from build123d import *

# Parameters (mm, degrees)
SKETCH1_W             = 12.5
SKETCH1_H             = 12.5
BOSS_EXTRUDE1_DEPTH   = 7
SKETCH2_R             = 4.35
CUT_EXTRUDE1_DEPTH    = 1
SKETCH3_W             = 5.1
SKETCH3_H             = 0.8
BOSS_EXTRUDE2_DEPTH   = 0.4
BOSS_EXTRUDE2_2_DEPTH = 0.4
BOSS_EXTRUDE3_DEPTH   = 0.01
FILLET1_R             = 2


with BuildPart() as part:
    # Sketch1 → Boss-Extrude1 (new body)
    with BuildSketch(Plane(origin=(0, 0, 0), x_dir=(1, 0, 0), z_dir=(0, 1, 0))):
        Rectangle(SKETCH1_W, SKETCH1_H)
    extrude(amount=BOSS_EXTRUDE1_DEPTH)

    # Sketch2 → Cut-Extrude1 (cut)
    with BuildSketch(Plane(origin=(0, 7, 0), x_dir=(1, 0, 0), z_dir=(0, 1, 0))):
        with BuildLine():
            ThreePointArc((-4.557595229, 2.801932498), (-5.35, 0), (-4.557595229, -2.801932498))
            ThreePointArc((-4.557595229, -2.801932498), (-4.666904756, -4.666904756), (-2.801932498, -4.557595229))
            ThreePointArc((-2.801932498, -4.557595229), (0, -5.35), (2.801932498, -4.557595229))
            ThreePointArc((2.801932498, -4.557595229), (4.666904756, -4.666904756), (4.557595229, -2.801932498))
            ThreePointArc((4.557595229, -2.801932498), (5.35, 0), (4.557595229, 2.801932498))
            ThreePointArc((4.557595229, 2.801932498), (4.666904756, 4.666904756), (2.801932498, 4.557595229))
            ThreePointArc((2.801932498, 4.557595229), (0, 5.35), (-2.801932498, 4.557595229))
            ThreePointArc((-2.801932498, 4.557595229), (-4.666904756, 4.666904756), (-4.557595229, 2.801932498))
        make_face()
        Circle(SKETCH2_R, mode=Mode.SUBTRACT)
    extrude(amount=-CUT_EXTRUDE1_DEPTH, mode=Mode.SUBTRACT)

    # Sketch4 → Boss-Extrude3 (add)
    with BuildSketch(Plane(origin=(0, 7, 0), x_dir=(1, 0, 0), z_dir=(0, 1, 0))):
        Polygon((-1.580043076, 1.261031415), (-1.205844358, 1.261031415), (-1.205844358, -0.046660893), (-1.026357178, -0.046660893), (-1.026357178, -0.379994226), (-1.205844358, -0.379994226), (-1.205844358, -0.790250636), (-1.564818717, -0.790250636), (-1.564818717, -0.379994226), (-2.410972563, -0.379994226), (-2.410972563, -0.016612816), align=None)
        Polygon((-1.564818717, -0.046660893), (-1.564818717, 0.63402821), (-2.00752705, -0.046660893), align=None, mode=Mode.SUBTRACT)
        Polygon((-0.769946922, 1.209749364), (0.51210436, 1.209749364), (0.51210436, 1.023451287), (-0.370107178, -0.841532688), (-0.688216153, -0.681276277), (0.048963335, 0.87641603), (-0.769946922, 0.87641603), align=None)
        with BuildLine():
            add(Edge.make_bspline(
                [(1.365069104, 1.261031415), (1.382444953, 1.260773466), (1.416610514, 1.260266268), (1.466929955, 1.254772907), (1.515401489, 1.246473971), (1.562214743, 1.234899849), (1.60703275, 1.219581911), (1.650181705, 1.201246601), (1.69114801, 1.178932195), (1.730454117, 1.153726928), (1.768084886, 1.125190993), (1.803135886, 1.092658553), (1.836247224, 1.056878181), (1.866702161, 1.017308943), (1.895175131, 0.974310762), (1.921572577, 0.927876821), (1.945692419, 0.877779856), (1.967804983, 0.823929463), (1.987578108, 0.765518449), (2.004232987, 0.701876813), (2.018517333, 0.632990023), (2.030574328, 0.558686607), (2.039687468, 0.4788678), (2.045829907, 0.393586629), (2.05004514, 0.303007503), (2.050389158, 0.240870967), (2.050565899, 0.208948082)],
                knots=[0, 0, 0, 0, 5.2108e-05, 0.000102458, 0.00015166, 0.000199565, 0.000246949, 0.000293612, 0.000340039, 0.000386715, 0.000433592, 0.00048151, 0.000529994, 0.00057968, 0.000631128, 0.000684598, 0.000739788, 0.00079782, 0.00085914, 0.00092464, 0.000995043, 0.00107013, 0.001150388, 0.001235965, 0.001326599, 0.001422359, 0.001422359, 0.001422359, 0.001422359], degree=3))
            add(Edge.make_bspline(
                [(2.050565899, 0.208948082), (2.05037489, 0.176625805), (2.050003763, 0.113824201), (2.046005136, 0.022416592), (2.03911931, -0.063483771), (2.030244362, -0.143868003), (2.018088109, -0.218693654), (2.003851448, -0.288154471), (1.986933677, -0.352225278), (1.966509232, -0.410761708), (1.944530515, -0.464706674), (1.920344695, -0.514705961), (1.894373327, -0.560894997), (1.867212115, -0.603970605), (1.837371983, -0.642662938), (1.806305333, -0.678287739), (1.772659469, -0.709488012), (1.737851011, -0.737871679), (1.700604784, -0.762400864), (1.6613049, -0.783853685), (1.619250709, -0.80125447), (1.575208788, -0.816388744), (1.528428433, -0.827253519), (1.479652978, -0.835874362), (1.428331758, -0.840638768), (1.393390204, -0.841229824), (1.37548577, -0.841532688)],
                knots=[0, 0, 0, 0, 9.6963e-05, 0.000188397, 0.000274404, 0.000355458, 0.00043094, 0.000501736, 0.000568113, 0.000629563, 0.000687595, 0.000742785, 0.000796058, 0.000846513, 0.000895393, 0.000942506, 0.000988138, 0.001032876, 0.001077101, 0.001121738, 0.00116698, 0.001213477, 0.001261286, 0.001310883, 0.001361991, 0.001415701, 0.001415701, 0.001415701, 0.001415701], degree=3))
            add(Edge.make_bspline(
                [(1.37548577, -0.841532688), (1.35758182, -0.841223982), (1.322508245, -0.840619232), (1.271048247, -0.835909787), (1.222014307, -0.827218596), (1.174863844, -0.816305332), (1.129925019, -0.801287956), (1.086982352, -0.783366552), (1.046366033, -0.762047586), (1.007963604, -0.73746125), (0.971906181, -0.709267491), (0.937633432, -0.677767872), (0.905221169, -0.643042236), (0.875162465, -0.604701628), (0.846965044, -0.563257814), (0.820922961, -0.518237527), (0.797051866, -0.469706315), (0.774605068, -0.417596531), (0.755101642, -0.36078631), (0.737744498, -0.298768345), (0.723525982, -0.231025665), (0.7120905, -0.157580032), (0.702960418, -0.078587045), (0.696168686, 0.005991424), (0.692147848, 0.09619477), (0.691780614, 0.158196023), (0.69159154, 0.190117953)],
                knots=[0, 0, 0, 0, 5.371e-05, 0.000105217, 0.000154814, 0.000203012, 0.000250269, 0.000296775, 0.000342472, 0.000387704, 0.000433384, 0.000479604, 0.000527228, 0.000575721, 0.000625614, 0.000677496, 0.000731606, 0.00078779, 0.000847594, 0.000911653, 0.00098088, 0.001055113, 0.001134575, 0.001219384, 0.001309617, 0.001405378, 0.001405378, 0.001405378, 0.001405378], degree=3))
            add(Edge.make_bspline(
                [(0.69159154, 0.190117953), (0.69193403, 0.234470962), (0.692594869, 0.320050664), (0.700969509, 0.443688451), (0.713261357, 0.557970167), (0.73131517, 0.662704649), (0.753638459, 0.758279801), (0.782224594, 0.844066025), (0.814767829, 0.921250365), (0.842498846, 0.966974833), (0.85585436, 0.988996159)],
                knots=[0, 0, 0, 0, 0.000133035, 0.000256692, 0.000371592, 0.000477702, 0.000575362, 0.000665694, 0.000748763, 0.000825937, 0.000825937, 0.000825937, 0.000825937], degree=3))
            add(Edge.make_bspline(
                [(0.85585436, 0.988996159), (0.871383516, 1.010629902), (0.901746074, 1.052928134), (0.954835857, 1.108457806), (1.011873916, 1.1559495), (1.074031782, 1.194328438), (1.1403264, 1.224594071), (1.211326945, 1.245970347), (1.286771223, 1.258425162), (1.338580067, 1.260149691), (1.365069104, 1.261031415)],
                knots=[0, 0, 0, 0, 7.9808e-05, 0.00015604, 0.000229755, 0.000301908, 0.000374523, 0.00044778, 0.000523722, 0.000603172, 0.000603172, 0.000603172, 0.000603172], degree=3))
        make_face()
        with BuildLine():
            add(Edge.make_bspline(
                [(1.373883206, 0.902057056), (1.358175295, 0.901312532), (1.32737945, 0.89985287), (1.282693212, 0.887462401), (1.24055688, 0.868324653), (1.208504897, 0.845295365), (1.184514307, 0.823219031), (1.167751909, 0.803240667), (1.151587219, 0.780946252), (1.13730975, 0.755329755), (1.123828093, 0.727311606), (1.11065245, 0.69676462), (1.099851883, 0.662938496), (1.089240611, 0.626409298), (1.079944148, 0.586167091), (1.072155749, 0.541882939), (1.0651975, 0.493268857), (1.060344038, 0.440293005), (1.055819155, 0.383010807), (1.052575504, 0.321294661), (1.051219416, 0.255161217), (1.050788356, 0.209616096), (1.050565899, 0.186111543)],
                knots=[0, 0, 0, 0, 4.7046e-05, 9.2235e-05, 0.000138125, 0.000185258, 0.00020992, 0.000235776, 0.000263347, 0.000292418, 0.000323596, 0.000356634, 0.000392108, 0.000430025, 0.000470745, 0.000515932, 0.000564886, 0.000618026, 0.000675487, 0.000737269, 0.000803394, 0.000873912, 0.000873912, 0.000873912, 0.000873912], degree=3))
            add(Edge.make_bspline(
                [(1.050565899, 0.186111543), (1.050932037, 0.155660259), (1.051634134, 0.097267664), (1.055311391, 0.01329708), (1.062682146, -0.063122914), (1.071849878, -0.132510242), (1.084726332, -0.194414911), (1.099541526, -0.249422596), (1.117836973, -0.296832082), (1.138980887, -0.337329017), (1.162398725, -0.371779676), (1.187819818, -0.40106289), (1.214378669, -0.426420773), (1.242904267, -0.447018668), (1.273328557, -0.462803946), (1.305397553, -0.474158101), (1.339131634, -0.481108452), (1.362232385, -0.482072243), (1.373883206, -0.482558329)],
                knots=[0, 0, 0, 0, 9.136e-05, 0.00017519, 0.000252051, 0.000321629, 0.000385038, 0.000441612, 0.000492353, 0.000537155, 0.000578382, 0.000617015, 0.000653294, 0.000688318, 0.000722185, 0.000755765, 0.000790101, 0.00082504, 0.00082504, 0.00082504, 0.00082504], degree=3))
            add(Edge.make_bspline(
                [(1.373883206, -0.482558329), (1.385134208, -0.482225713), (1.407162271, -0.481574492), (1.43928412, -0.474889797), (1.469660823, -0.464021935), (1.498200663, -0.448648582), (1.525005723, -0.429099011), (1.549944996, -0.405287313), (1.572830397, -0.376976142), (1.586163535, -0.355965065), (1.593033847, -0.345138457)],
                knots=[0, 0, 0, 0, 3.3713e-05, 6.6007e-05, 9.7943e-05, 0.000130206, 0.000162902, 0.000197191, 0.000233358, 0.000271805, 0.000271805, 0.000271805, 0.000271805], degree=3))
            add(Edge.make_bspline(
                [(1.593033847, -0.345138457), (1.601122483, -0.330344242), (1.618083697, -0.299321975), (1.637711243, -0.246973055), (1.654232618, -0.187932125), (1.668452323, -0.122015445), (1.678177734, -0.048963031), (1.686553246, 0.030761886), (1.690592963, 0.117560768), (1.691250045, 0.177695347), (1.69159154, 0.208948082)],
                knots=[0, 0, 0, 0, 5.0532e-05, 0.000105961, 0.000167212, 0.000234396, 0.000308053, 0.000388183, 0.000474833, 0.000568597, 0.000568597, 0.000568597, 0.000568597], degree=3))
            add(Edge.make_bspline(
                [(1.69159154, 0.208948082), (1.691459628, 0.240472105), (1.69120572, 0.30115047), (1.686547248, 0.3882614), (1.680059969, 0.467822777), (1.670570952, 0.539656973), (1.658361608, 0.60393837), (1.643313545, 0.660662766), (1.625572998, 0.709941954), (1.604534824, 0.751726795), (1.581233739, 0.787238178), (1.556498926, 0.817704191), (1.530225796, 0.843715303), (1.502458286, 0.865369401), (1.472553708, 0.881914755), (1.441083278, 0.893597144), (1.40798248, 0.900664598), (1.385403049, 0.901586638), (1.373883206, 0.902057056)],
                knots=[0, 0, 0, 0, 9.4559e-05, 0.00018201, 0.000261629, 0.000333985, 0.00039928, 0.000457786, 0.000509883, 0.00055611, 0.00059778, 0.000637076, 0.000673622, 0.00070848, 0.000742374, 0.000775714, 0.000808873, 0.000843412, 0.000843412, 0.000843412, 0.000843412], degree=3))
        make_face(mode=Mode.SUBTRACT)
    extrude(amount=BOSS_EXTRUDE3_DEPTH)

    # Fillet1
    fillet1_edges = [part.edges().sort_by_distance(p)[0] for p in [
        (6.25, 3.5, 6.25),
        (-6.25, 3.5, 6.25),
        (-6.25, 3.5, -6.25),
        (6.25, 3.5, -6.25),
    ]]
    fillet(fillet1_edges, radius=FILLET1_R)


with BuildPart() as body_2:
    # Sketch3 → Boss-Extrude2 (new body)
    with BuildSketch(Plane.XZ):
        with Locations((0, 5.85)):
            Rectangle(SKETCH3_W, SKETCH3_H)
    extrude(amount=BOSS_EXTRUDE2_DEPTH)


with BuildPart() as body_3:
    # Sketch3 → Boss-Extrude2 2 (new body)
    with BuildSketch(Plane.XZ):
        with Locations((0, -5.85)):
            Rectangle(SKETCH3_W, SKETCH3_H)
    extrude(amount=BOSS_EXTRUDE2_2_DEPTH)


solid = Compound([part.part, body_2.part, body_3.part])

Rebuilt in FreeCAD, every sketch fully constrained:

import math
import FreeCAD as App
import Part
import Sketcher
from FreeCAD import Vector
Q = App.Units.Quantity


def edges_at(feature, points):
    """Names of the edges that pass closest to the given points."""
    edges = feature.Shape.Edges
    near = lambda p: min(range(len(edges)), key=lambda i: edges[i].distToShape(Part.Vertex(*p))[0])
    return sorted({f"Edge{near(p) + 1}" for p in points})


def add_polygon(sketch, points):
    """Adds a closed chain of lines whose ends are joined by coincident constraints."""
    first, n = sketch.GeometryCount, len(points)
    for a, b in zip(points, points[1:] + points[:1]):
        sketch.addGeometry(Part.LineSegment(App.Vector(*a, 0), App.Vector(*b, 0)), False)
    for i in range(n):
        sketch.addConstraint(Sketcher.Constraint("Coincident", first + i, 2, first + (i + 1) % n, 1))

doc = App.newDocument("Part")
params = doc.addObject("Spreadsheet::Sheet", "Params")
for row, (alias, value) in enumerate([
    ("sketch1_width", "12.5 mm"),
    ("pad1_length", "7 mm"),
    ("sketch2_diameter", "8.7 mm"),
    ("sketch2_radius", "5.35 mm"),
    ("sketch2_radius2", "1.25 mm"),
    ("pocket1_length", "1 mm"),
    ("pad2_length", "0.01 mm"),
    ("fillet_radius", "2 mm"),
    ("sketch4_width", "5.1 mm"),
    ("sketch4_height", "0.8 mm"),
    ("pad3_length", "0.4 mm"),
    ("sketch5_width", "5.1 mm"),
    ("sketch5_height", "0.8 mm"),
    ("pad4_length", "0.4 mm"),
], start=1):
    params.set(f"A{row}", alias)
    params.set(f"B{row}", "=" + value)
    params.setAlias(f"B{row}", alias)

body = doc.addObject("PartDesign::Body", "Body")

# Sketch on XZ plane
sketch1 = body.newObject("Sketcher::SketchObject", "Sketch")
sketch1.AttachmentSupport = (doc.getObject("XZ_Plane"), [""])
sketch1.MapMode = "FlatFace"
add_polygon(sketch1, [(-6, -6), (-6, 6), (6, 6), (6, -6)])  # lines 0-3
sketch1.addConstraint(Sketcher.Constraint("Vertical", 0))
sketch1.addConstraint(Sketcher.Constraint("Horizontal", 1))
sketch1.addConstraint(Sketcher.Constraint("Vertical", 2))
sketch1.addConstraint(Sketcher.Constraint("Horizontal", 3))
sketch1.addConstraint(Sketcher.Constraint("Symmetric", 0, 2, 2, 2, -1, 1))
sketch1.addConstraint(Sketcher.Constraint("Equal", 3, 0))
sketch1.addConstraint(Sketcher.Constraint("DistanceX", 1, 1, 1, 2, Q("12.5 mm")))
sketch1.setExpression("Constraints[10]", "Params.sketch1_width")
pad1 = body.newObject("PartDesign::Pad", "Pad")
pad1.Profile = sketch1
pad1.setExpression("Length", "Params.pad1_length")
pad1.Reversed = True

# Sketch on XZ plane
sketch2 = body.newObject("Sketcher::SketchObject", "Sketch001")
sketch2.AttachmentSupport = (doc.getObject("XZ_Plane"), [""])
sketch2.MapMode = "FlatFace"
sketch2.AttachmentOffset = App.Placement(Vector(0, 0, -7), App.Rotation())
sketch2.addGeometry(Part.ArcOfCircle(Part.Circle(Vector(0, 0, 0), Vector(0, 0, 1), 5.3), math.radians(148), math.radians(212)), False)
sketch2.addGeometry(Part.ArcOfCircle(Part.Circle(Vector(-3.8, 3.8, 0), Vector(0, 0, 1), 1.2), math.radians(38), math.radians(232)), False)
sketch2.addGeometry(Part.ArcOfCircle(Part.Circle(Vector(0, 0, 0), Vector(0, 0, 1), 5.3), math.radians(58), math.radians(122)), False)
sketch2.addGeometry(Part.ArcOfCircle(Part.Circle(Vector(3.8, 3.8, 0), Vector(0, 0, 1), 1.2), math.radians(-52), math.radians(142)), False)
sketch2.addGeometry(Part.ArcOfCircle(Part.Circle(Vector(0, 0, 0), Vector(0, 0, 1), 5.3), math.radians(-32), math.radians(32)), False)
sketch2.addGeometry(Part.ArcOfCircle(Part.Circle(Vector(3.8, -3.8, 0), Vector(0, 0, 1), 1.2), math.radians(-142), math.radians(52)), False)
sketch2.addGeometry(Part.ArcOfCircle(Part.Circle(Vector(0, 0, 0), Vector(0, 0, 1), 5.3), math.radians(-122), math.radians(-58)), False)
sketch2.addGeometry(Part.ArcOfCircle(Part.Circle(Vector(-3.8, -3.8, 0), Vector(0, 0, 1), 1.2), math.radians(128), math.radians(322)), False)
sketch2.addGeometry(Part.Circle(Vector(0, 0, 0), Vector(0, 0, 1), 4.3), False)
sketch2.addConstraint(Sketcher.Constraint("Coincident", 0, 1, 1, 2))
sketch2.addConstraint(Sketcher.Constraint("Coincident", 1, 1, 2, 2))
sketch2.addConstraint(Sketcher.Constraint("Coincident", 2, 1, 3, 2))
sketch2.addConstraint(Sketcher.Constraint("Coincident", 3, 1, 4, 2))
sketch2.addConstraint(Sketcher.Constraint("Coincident", 4, 1, 5, 2))
sketch2.addConstraint(Sketcher.Constraint("Coincident", 5, 1, 6, 2))
sketch2.addConstraint(Sketcher.Constraint("Coincident", 6, 1, 7, 2))
sketch2.addConstraint(Sketcher.Constraint("Coincident", 7, 1, 0, 2))
sketch2.addConstraint(Sketcher.Constraint("Coincident", 0, 3, -1, 1))
sketch2.addConstraint(Sketcher.Constraint("Coincident", 2, 3, -1, 1))
sketch2.addConstraint(Sketcher.Constraint("Coincident", 4, 3, -1, 1))
sketch2.addConstraint(Sketcher.Constraint("Coincident", 6, 3, -1, 1))
sketch2.addConstraint(Sketcher.Constraint("Coincident", 8, 3, -1, 1))
sketch2.addConstraint(Sketcher.Constraint("Equal", 0, 2))
sketch2.addConstraint(Sketcher.Constraint("Equal", 1, 3))
sketch2.addConstraint(Sketcher.Constraint("Equal", 2, 4))
sketch2.addConstraint(Sketcher.Constraint("Equal", 3, 5))
sketch2.addConstraint(Sketcher.Constraint("Equal", 4, 6))
sketch2.addConstraint(Sketcher.Constraint("Equal", 5, 7))
sketch2.addConstraint(Sketcher.Constraint("Symmetric", 1, 3, 5, 3, -1, 1))
sketch2.addConstraint(Sketcher.Constraint("Symmetric", 3, 3, 7, 3, -1, 1))
sketch2.addConstraint(Sketcher.Constraint("Symmetric", 1, 3, 3, 3, -2))
sketch2.addConstraint(Sketcher.Constraint("Diameter", 8, Q("8.7 mm")))
sketch2.addConstraint(Sketcher.Constraint("Radius", 0, Q("5.35 mm")))
sketch2.addConstraint(Sketcher.Constraint("Radius", 1, Q("1.25 mm")))
sketch2.addConstraint(Sketcher.Constraint("DistanceX", 1, 3, -1, 1, Q("3.783021 mm")))
sketch2.addConstraint(Sketcher.Constraint("DistanceY", -1, 1, 1, 3, Q("3.783021 mm")))
sketch2.setExpression("Constraints[22]", "Params.sketch2_diameter")
sketch2.setExpression("Constraints[23]", "Params.sketch2_radius")
sketch2.setExpression("Constraints[24]", "Params.sketch2_radius2")
pocket1 = body.newObject("PartDesign::Pocket", "Pocket")
pocket1.Profile = sketch2
pocket1.setExpression("Length", "Params.pocket1_length")
pocket1.Reversed = True

# Sketch on XZ plane
sketch3 = body.newObject("Sketcher::SketchObject", "Sketch002")
sketch3.AttachmentSupport = (doc.getObject("XZ_Plane"), [""])
sketch3.MapMode = "FlatFace"
sketch3.AttachmentOffset = App.Placement(Vector(0, 0, -7), App.Rotation())
add_polygon(sketch3, [(-1.205844, -1.261031), (-1.580043, -1.261031), (-2.410973, 0.016613), (-2.410973, 0.379994), (-1.564819, 0.379994), (-1.564819, 0.790251), (-1.205844, 0.790251), (-1.205844, 0.379994), (-1.026357, 0.379994), (-1.026357, 0.046661), (-1.205844, 0.046661)])  # lines 0-10
add_polygon(sketch3, [(-1.564819, 0.046661), (-2.007527, 0.046661), (-1.564819, -0.634028)])  # lines 11-13
add_polygon(sketch3, [(0.512104, -1.209749), (-0.769947, -1.209749), (-0.769947, -0.876416), (0.048963, -0.876416), (-0.688216, 0.681276), (-0.370107, 0.841533), (0.512104, -1.023451)])  # lines 14-20
sketch3.addGeometry(Part.BSplineCurve([Vector(1.365069, -1.261031, 0), Vector(1.382445, -1.260773, 0), Vector(1.416611, -1.260266, 0), Vector(1.46693, -1.254773, 0), Vector(1.515401, -1.246474, 0), Vector(1.562215, -1.2349, 0), Vector(1.607033, -1.219582, 0), Vector(1.650182, -1.201247, 0), Vector(1.691148, -1.178932, 0), Vector(1.730454, -1.153727, 0), Vector(1.768085, -1.125191, 0), Vector(1.803136, -1.092659, 0), Vector(1.836247, -1.056878, 0), Vector(1.866702, -1.017309, 0), Vector(1.895175, -0.974311, 0), Vector(1.921573, -0.927877, 0), Vector(1.945692, -0.87778, 0), Vector(1.967805, -0.823929, 0), Vector(1.987578, -0.765518, 0), Vector(2.004233, -0.701877, 0), Vector(2.018517, -0.63299, 0), Vector(2.030574, -0.558687, 0), Vector(2.039687, -0.478868, 0), Vector(2.04583, -0.393587, 0), Vector(2.050045, -0.303008, 0), Vector(2.050389, -0.240871, 0), Vector(2.050566, -0.208948, 0)], [4, 1, 1, 1, 1, 1, 1, 1, 1, 1, 1, 1, 1, 1, 1, 1, 1, 1, 1, 1, 1, 1, 1, 1, 4], [0, 0.000052108, 0.000102458, 0.00015166, 0.000199565, 0.000246949, 0.000293612, 0.000340039, 0.000386715, 0.000433592, 0.00048151, 0.000529994, 0.00057968, 0.000631128, 0.000684598, 0.000739788, 0.00079782, 0.00085914, 0.00092464, 0.000995043, 0.00107013, 0.001150388, 0.001235965, 0.001326599, 0.001422359], False, 3, [1, 1, 1, 1, 1, 1, 1, 1, 1, 1, 1, 1, 1, 1, 1, 1, 1, 1, 1, 1, 1, 1, 1, 1, 1, 1, 1], False), False)  # 21
sketch3.addGeometry(Part.BSplineCurve([Vector(0.855854, -0.988996, 0), Vector(0.871384, -1.01063, 0), Vector(0.901746, -1.052928, 0), Vector(0.954836, -1.108458, 0), Vector(1.011874, -1.155949, 0), Vector(1.074032, -1.194328, 0), Vector(1.140326, -1.224594, 0), Vector(1.211327, -1.24597, 0), Vector(1.286771, -1.258425, 0), Vector(1.33858, -1.26015, 0), Vector(1.365069, -1.261031, 0)], [4, 1, 1, 1, 1, 1, 1, 1, 4], [0, 0.000079808, 0.00015604, 0.000229755, 0.000301908, 0.000374523, 0.00044778, 0.000523722, 0.000603172], False, 3, [1, 1, 1, 1, 1, 1, 1, 1, 1, 1, 1], False), False)  # 22
sketch3.addGeometry(Part.BSplineCurve([Vector(0.691592, -0.190118, 0), Vector(0.691934, -0.234471, 0), Vector(0.692595, -0.320051, 0), Vector(0.70097, -0.443688, 0), Vector(0.713261, -0.55797, 0), Vector(0.731315, -0.662705, 0), Vector(0.753638, -0.75828, 0), Vector(0.782225, -0.844066, 0), Vector(0.814768, -0.92125, 0), Vector(0.842499, -0.966975, 0), Vector(0.855854, -0.988996, 0)], [4, 1, 1, 1, 1, 1, 1, 1, 4], [0, 0.000133035, 0.000256692, 0.000371592, 0.000477702, 0.000575362, 0.000665694, 0.000748763, 0.000825937], False, 3, [1, 1, 1, 1, 1, 1, 1, 1, 1, 1, 1], False), False)  # 23
sketch3.addGeometry(Part.BSplineCurve([Vector(1.375486, 0.841533, 0), Vector(1.357582, 0.841224, 0), Vector(1.322508, 0.840619, 0), Vector(1.271048, 0.83591, 0), Vector(1.222014, 0.827219, 0), Vector(1.174864, 0.816305, 0), Vector(1.129925, 0.801288, 0), Vector(1.086982, 0.783367, 0), Vector(1.046366, 0.762048, 0), Vector(1.007964, 0.737461, 0), Vector(0.971906, 0.709267, 0), Vector(0.937633, 0.677768, 0), Vector(0.905221, 0.643042, 0), Vector(0.875162, 0.604702, 0), Vector(0.846965, 0.563258, 0), Vector(0.820923, 0.518238, 0), Vector(0.797052, 0.469706, 0), Vector(0.774605, 0.417597, 0), Vector(0.755102, 0.360786, 0), Vector(0.737744, 0.298768, 0), Vector(0.723526, 0.231026, 0), Vector(0.71209, 0.15758, 0), Vector(0.70296, 0.078587, 0), Vector(0.696169, -0.005991, 0), Vector(0.692148, -0.096195, 0), Vector(0.691781, -0.158196, 0), Vector(0.691592, -0.190118, 0)], [4, 1, 1, 1, 1, 1, 1, 1, 1, 1, 1, 1, 1, 1, 1, 1, 1, 1, 1, 1, 1, 1, 1, 1, 4], [0, 0.00005371, 0.000105217, 0.000154814, 0.000203012, 0.000250269, 0.000296775, 0.000342472, 0.000387704, 0.000433384, 0.000479604, 0.000527228, 0.000575721, 0.000625614, 0.000677496, 0.000731606, 0.00078779, 0.000847594, 0.000911653, 0.00098088, 0.001055113, 0.001134575, 0.001219384, 0.001309617, 0.001405378], False, 3, [1, 1, 1, 1, 1, 1, 1, 1, 1, 1, 1, 1, 1, 1, 1, 1, 1, 1, 1, 1, 1, 1, 1, 1, 1, 1, 1], False), False)  # 24
sketch3.addGeometry(Part.BSplineCurve([Vector(2.050566, -0.208948, 0), Vector(2.050375, -0.176626, 0), Vector(2.050004, -0.113824, 0), Vector(2.046005, -0.022417, 0), Vector(2.039119, 0.063484, 0), Vector(2.030244, 0.143868, 0), Vector(2.018088, 0.218694, 0), Vector(2.003851, 0.288154, 0), Vector(1.986934, 0.352225, 0), Vector(1.966509, 0.410762, 0), Vector(1.944531, 0.464707, 0), Vector(1.920345, 0.514706, 0), Vector(1.894373, 0.560895, 0), Vector(1.867212, 0.603971, 0), Vector(1.837372, 0.642663, 0), Vector(1.806305, 0.678288, 0), Vector(1.772659, 0.709488, 0), Vector(1.737851, 0.737872, 0), Vector(1.700605, 0.762401, 0), Vector(1.661305, 0.783854, 0), Vector(1.619251, 0.801254, 0), Vector(1.575209, 0.816389, 0), Vector(1.528428, 0.827254, 0), Vector(1.479653, 0.835874, 0), Vector(1.428332, 0.840639, 0), Vector(1.39339, 0.84123, 0), Vector(1.375486, 0.841533, 0)], [4, 1, 1, 1, 1, 1, 1, 1, 1, 1, 1, 1, 1, 1, 1, 1, 1, 1, 1, 1, 1, 1, 1, 1, 4], [0, 0.000096963, 0.000188397, 0.000274404, 0.000355458, 0.00043094, 0.000501736, 0.000568113, 0.000629563, 0.000687595, 0.000742785, 0.000796058, 0.000846513, 0.000895393, 0.000942506, 0.000988138, 0.001032876, 0.001077101, 0.001121738, 0.00116698, 0.001213477, 0.001261286, 0.001310883, 0.001361991, 0.001415701], False, 3, [1, 1, 1, 1, 1, 1, 1, 1, 1, 1, 1, 1, 1, 1, 1, 1, 1, 1, 1, 1, 1, 1, 1, 1, 1, 1, 1], False), False)  # 25
sketch3.addGeometry(Part.BSplineCurve([Vector(1.691592, -0.208948, 0), Vector(1.69146, -0.240472, 0), Vector(1.691206, -0.30115, 0), Vector(1.686547, -0.388261, 0), Vector(1.68006, -0.467823, 0), Vector(1.670571, -0.539657, 0), Vector(1.658362, -0.603938, 0), Vector(1.643314, -0.660663, 0), Vector(1.625573, -0.709942, 0), Vector(1.604535, -0.751727, 0), Vector(1.581234, -0.787238, 0), Vector(1.556499, -0.817704, 0), Vector(1.530226, -0.843715, 0), Vector(1.502458, -0.865369, 0), Vector(1.472554, -0.881915, 0), Vector(1.441083, -0.893597, 0), Vector(1.407982, -0.900665, 0), Vector(1.385403, -0.901587, 0), Vector(1.373883, -0.902057, 0)], [4, 1, 1, 1, 1, 1, 1, 1, 1, 1, 1, 1, 1, 1, 1, 1, 4], [0, 0.000094559, 0.00018201, 0.000261629, 0.000333985, 0.00039928, 0.000457786, 0.000509883, 0.00055611, 0.00059778, 0.000637076, 0.000673622, 0.00070848, 0.000742374, 0.000775714, 0.000808873, 0.000843412], False, 3, [1, 1, 1, 1, 1, 1, 1, 1, 1, 1, 1, 1, 1, 1, 1, 1, 1, 1, 1], False), False)  # 26
sketch3.addGeometry(Part.BSplineCurve([Vector(1.593034, 0.345138, 0), Vector(1.601122, 0.330344, 0), Vector(1.618084, 0.299322, 0), Vector(1.637711, 0.246973, 0), Vector(1.654233, 0.187932, 0), Vector(1.668452, 0.122015, 0), Vector(1.678178, 0.048963, 0), Vector(1.686553, -0.030762, 0), Vector(1.690593, -0.117561, 0), Vector(1.69125, -0.177695, 0), Vector(1.691592, -0.208948, 0)], [4, 1, 1, 1, 1, 1, 1, 1, 4], [0, 0.000050532, 0.000105961, 0.000167212, 0.000234396, 0.000308053, 0.000388183, 0.000474833, 0.000568597], False, 3, [1, 1, 1, 1, 1, 1, 1, 1, 1, 1, 1], False), False)  # 27
sketch3.addGeometry(Part.BSplineCurve([Vector(1.373883, 0.482558, 0), Vector(1.385134, 0.482226, 0), Vector(1.407162, 0.481574, 0), Vector(1.439284, 0.47489, 0), Vector(1.469661, 0.464022, 0), Vector(1.498201, 0.448649, 0), Vector(1.525006, 0.429099, 0), Vector(1.549945, 0.405287, 0), Vector(1.57283, 0.376976, 0), Vector(1.586164, 0.355965, 0), Vector(1.593034, 0.345138, 0)], [4, 1, 1, 1, 1, 1, 1, 1, 4], [0, 0.000033713, 0.000066007, 0.000097943, 0.000130206, 0.000162902, 0.000197191, 0.000233358, 0.000271805], False, 3, [1, 1, 1, 1, 1, 1, 1, 1, 1, 1, 1], False), False)  # 28
sketch3.addGeometry(Part.BSplineCurve([Vector(1.050566, -0.186112, 0), Vector(1.050932, -0.15566, 0), Vector(1.051634, -0.097268, 0), Vector(1.055311, -0.013297, 0), Vector(1.062682, 0.063123, 0), Vector(1.07185, 0.13251, 0), Vector(1.084726, 0.194415, 0), Vector(1.099542, 0.249423, 0), Vector(1.117837, 0.296832, 0), Vector(1.138981, 0.337329, 0), Vector(1.162399, 0.37178, 0), Vector(1.18782, 0.401063, 0), Vector(1.214379, 0.426421, 0), Vector(1.242904, 0.447019, 0), Vector(1.273329, 0.462804, 0), Vector(1.305398, 0.474158, 0), Vector(1.339132, 0.481108, 0), Vector(1.362232, 0.482072, 0), Vector(1.373883, 0.482558, 0)], [4, 1, 1, 1, 1, 1, 1, 1, 1, 1, 1, 1, 1, 1, 1, 1, 4], [0, 0.00009136, 0.00017519, 0.000252051, 0.000321629, 0.000385038, 0.000441612, 0.000492353, 0.000537155, 0.000578382, 0.000617015, 0.000653294, 0.000688318, 0.000722185, 0.000755765, 0.000790101, 0.00082504], False, 3, [1, 1, 1, 1, 1, 1, 1, 1, 1, 1, 1, 1, 1, 1, 1, 1, 1, 1, 1], False), False)  # 29
sketch3.addGeometry(Part.BSplineCurve([Vector(1.373883, -0.902057, 0), Vector(1.358175, -0.901313, 0), Vector(1.327379, -0.899853, 0), Vector(1.282693, -0.887462, 0), Vector(1.240557, -0.868325, 0), Vector(1.208505, -0.845295, 0), Vector(1.184514, -0.823219, 0), Vector(1.167752, -0.803241, 0), Vector(1.151587, -0.780946, 0), Vector(1.13731, -0.75533, 0), Vector(1.123828, -0.727312, 0), Vector(1.110652, -0.696765, 0), Vector(1.099852, -0.662938, 0), Vector(1.089241, -0.626409, 0), Vector(1.079944, -0.586167, 0), Vector(1.072156, -0.541883, 0), Vector(1.065198, -0.493269, 0), Vector(1.060344, -0.440293, 0), Vector(1.055819, -0.383011, 0), Vector(1.052576, -0.321295, 0), Vector(1.051219, -0.255161, 0), Vector(1.050788, -0.209616, 0), Vector(1.050566, -0.186112, 0)], [4, 1, 1, 1, 1, 1, 1, 1, 1, 1, 1, 1, 1, 1, 1, 1, 1, 1, 1, 1, 4], [0, 0.000047046, 0.000092235, 0.000138125, 0.000185258, 0.00020992, 0.000235776, 0.000263347, 0.000292418, 0.000323596, 0.000356634, 0.000392108, 0.000430025, 0.000470745, 0.000515932, 0.000564886, 0.000618026, 0.000675487, 0.000737269, 0.000803394, 0.000873912], False, 3, [1, 1, 1, 1, 1, 1, 1, 1, 1, 1, 1, 1, 1, 1, 1, 1, 1, 1, 1, 1, 1, 1, 1], False), False)  # 30
sketch3.addConstraint(Sketcher.Constraint("Block", 21))
sketch3.addConstraint(Sketcher.Constraint("Block", 22))
sketch3.addConstraint(Sketcher.Constraint("Block", 23))
sketch3.addConstraint(Sketcher.Constraint("Block", 24))
sketch3.addConstraint(Sketcher.Constraint("Block", 25))
sketch3.addConstraint(Sketcher.Constraint("Block", 26))
sketch3.addConstraint(Sketcher.Constraint("Block", 27))
sketch3.addConstraint(Sketcher.Constraint("Block", 28))
sketch3.addConstraint(Sketcher.Constraint("Block", 29))
sketch3.addConstraint(Sketcher.Constraint("Block", 30))
sketch3.addConstraint(Sketcher.Constraint("Horizontal", 0))
sketch3.addConstraint(Sketcher.Constraint("Vertical", 2))
sketch3.addConstraint(Sketcher.Constraint("Horizontal", 3))
sketch3.addConstraint(Sketcher.Constraint("Vertical", 4))
sketch3.addConstraint(Sketcher.Constraint("Horizontal", 5))
sketch3.addConstraint(Sketcher.Constraint("Vertical", 6))
sketch3.addConstraint(Sketcher.Constraint("Horizontal", 7))
sketch3.addConstraint(Sketcher.Constraint("Vertical", 8))
sketch3.addConstraint(Sketcher.Constraint("Horizontal", 9))
sketch3.addConstraint(Sketcher.Constraint("Vertical", 10))
sketch3.addConstraint(Sketcher.Constraint("Horizontal", 11))
sketch3.addConstraint(Sketcher.Constraint("Vertical", 13))
sketch3.addConstraint(Sketcher.Constraint("Horizontal", 14))
sketch3.addConstraint(Sketcher.Constraint("Vertical", 15))
sketch3.addConstraint(Sketcher.Constraint("Horizontal", 16))
sketch3.addConstraint(Sketcher.Constraint("Vertical", 20))
sketch3.addConstraint(Sketcher.Constraint("Horizontal", 3, 2, 6, 2))
sketch3.addConstraint(Sketcher.Constraint("Horizontal", 9, 2, 11, 2))
sketch3.addConstraint(Sketcher.Constraint("Vertical", 6, 2, 9, 2))
sketch3.addConstraint(Sketcher.Constraint("Vertical", 4, 2, 12, 2))
sketch3.addConstraint(Sketcher.Constraint("Equal", 8, 15))
sketch3.addConstraint(Sketcher.Constraint("DistanceX", 0, 2, 0, 1, Q("0.374199 mm")))
sketch3.addConstraint(Sketcher.Constraint("DistanceY", 20, 2, 20, 1, Q("0.186298 mm")))
sketch3.addConstraint(Sketcher.Constraint("DistanceX", 11, 2, 11, 1, Q("0.442708 mm")))
sketch3.addConstraint(Sketcher.Constraint("DistanceX", 14, 2, 14, 1, Q("1.282051 mm")))
sketch3.addConstraint(Sketcher.Constraint("DistanceX", 16, 1, 16, 2, Q("0.81891 mm")))
sketch3.addConstraint(Sketcher.Constraint("DistanceY", 2, 1, 2, 2, Q("0.363381 mm")))
sketch3.addConstraint(Sketcher.Constraint("DistanceY", 13, 1, 13, 2, Q("0.680689 mm")))
sketch3.addConstraint(Sketcher.Constraint("Distance", 1, Q("1.52408 mm")))
sketch3.addConstraint(Sketcher.Constraint("Distance", 19, Q("2.06312 mm")))
sketch3.addConstraint(Sketcher.Constraint("DistanceX", 3, 1, 3, 2, Q("0.846154 mm")))
sketch3.addConstraint(Sketcher.Constraint("DistanceX", 5, 1, 5, 2, Q("0.358974 mm")))
sketch3.addConstraint(Sketcher.Constraint("DistanceX", 7, 1, 7, 2, Q("0.179487 mm")))
sketch3.addConstraint(Sketcher.Constraint("DistanceY", 4, 1, 4, 2, Q("0.410256 mm")))
sketch3.addConstraint(Sketcher.Constraint("DistanceY", 8, 2, 8, 1, Q("0.333333 mm")))
sketch3.addConstraint(Sketcher.Constraint("DistanceY", 0, 2, -1, 1, Q("1.261031 mm")))
sketch3.addConstraint(Sketcher.Constraint("DistanceX", 3, 2, -1, 1, Q("1.564819 mm")))
sketch3.addConstraint(Sketcher.Constraint("DistanceY", 14, 2, -1, 1, Q("1.209749 mm")))
sketch3.addConstraint(Sketcher.Constraint("DistanceX", 12, 2, 14, 2, Q("0.794872 mm")))
sketch3.addConstraint(Sketcher.Constraint("DistanceX", 7, 2, 17, 2, Q("0.338141 mm")))
sketch3.addConstraint(Sketcher.Constraint("DistanceX", 17, 2, 18, 2, Q("0.318109 mm")))
sketch3.addConstraint(Sketcher.Constraint("Distance", 17, Q("1.723322 mm")))
pad2 = body.newObject("PartDesign::Pad", "Pad001")
pad2.Profile = sketch3
pad2.setExpression("Length", "Params.pad2_length")
pad2.Reversed = True
doc.recompute()

fillet = body.newObject("PartDesign::Fillet", "Fillet")
fillet.Base = (pad2, edges_at(pad2, [
    (6.25, 3.5, 6.25),
    (-6.25, 3.5, 6.25),
    (-6.25, 3.5, -6.25),
    (6.25, 3.5, -6.25),
]))
fillet.setExpression("Radius", "Params.fillet_radius")
body2 = doc.addObject("PartDesign::Body", "Body001")

# Sketch on XZ plane
sketch4 = body2.newObject("Sketcher::SketchObject", "Sketch003")
sketch4.AttachmentSupport = (doc.getObject("XZ_Plane001"), [""])
sketch4.MapMode = "FlatFace"
add_polygon(sketch4, [(-2.5, 6.2), (-2.5, 5.5), (2.5, 5.5), (2.5, 6.2)])  # lines 0-3
sketch4.addConstraint(Sketcher.Constraint("Vertical", 0))
sketch4.addConstraint(Sketcher.Constraint("Horizontal", 1))
sketch4.addConstraint(Sketcher.Constraint("Vertical", 2))
sketch4.addConstraint(Sketcher.Constraint("Horizontal", 3))
sketch4.addConstraint(Sketcher.Constraint("DistanceX", 1, 1, 1, 2, Q("5.1 mm")))
sketch4.addConstraint(Sketcher.Constraint("DistanceY", 0, 2, 0, 1, Q("0.8 mm")))
sketch4.addConstraint(Sketcher.Constraint("DistanceX", 0, 2, -1, 1, Q("2.55 mm")))
sketch4.addConstraint(Sketcher.Constraint("DistanceY", -1, 1, 0, 2, Q("5.45 mm")))
sketch4.setExpression("Constraints[8]", "Params.sketch4_width")
sketch4.setExpression("Constraints[9]", "Params.sketch4_height")
pad3 = body2.newObject("PartDesign::Pad", "Pad002")
pad3.Profile = sketch4
pad3.setExpression("Length", "Params.pad3_length")
body3 = doc.addObject("PartDesign::Body", "Body002")

# Sketch on XZ plane
sketch5 = body3.newObject("Sketcher::SketchObject", "Sketch004")
sketch5.AttachmentSupport = (doc.getObject("XZ_Plane002"), [""])
sketch5.MapMode = "FlatFace"
add_polygon(sketch5, [(-2.5, -5.5), (-2.5, -6.2), (2.5, -6.2), (2.5, -5.5)])  # lines 0-3
sketch5.addConstraint(Sketcher.Constraint("Vertical", 0))
sketch5.addConstraint(Sketcher.Constraint("Horizontal", 1))
sketch5.addConstraint(Sketcher.Constraint("Vertical", 2))
sketch5.addConstraint(Sketcher.Constraint("Horizontal", 3))
sketch5.addConstraint(Sketcher.Constraint("DistanceX", 1, 1, 1, 2, Q("5.1 mm")))
sketch5.addConstraint(Sketcher.Constraint("DistanceY", 0, 2, 0, 1, Q("0.8 mm")))
sketch5.addConstraint(Sketcher.Constraint("DistanceX", 0, 2, -1, 1, Q("2.55 mm")))
sketch5.addConstraint(Sketcher.Constraint("DistanceY", 0, 2, -1, 1, Q("6.25 mm")))
sketch5.setExpression("Constraints[8]", "Params.sketch5_width")
sketch5.setExpression("Constraints[9]", "Params.sketch5_height")
pad4 = body3.newObject("PartDesign::Pad", "Pad003")
pad4.Profile = sketch5
pad4.setExpression("Length", "Params.pad4_length")

doc.recompute()
